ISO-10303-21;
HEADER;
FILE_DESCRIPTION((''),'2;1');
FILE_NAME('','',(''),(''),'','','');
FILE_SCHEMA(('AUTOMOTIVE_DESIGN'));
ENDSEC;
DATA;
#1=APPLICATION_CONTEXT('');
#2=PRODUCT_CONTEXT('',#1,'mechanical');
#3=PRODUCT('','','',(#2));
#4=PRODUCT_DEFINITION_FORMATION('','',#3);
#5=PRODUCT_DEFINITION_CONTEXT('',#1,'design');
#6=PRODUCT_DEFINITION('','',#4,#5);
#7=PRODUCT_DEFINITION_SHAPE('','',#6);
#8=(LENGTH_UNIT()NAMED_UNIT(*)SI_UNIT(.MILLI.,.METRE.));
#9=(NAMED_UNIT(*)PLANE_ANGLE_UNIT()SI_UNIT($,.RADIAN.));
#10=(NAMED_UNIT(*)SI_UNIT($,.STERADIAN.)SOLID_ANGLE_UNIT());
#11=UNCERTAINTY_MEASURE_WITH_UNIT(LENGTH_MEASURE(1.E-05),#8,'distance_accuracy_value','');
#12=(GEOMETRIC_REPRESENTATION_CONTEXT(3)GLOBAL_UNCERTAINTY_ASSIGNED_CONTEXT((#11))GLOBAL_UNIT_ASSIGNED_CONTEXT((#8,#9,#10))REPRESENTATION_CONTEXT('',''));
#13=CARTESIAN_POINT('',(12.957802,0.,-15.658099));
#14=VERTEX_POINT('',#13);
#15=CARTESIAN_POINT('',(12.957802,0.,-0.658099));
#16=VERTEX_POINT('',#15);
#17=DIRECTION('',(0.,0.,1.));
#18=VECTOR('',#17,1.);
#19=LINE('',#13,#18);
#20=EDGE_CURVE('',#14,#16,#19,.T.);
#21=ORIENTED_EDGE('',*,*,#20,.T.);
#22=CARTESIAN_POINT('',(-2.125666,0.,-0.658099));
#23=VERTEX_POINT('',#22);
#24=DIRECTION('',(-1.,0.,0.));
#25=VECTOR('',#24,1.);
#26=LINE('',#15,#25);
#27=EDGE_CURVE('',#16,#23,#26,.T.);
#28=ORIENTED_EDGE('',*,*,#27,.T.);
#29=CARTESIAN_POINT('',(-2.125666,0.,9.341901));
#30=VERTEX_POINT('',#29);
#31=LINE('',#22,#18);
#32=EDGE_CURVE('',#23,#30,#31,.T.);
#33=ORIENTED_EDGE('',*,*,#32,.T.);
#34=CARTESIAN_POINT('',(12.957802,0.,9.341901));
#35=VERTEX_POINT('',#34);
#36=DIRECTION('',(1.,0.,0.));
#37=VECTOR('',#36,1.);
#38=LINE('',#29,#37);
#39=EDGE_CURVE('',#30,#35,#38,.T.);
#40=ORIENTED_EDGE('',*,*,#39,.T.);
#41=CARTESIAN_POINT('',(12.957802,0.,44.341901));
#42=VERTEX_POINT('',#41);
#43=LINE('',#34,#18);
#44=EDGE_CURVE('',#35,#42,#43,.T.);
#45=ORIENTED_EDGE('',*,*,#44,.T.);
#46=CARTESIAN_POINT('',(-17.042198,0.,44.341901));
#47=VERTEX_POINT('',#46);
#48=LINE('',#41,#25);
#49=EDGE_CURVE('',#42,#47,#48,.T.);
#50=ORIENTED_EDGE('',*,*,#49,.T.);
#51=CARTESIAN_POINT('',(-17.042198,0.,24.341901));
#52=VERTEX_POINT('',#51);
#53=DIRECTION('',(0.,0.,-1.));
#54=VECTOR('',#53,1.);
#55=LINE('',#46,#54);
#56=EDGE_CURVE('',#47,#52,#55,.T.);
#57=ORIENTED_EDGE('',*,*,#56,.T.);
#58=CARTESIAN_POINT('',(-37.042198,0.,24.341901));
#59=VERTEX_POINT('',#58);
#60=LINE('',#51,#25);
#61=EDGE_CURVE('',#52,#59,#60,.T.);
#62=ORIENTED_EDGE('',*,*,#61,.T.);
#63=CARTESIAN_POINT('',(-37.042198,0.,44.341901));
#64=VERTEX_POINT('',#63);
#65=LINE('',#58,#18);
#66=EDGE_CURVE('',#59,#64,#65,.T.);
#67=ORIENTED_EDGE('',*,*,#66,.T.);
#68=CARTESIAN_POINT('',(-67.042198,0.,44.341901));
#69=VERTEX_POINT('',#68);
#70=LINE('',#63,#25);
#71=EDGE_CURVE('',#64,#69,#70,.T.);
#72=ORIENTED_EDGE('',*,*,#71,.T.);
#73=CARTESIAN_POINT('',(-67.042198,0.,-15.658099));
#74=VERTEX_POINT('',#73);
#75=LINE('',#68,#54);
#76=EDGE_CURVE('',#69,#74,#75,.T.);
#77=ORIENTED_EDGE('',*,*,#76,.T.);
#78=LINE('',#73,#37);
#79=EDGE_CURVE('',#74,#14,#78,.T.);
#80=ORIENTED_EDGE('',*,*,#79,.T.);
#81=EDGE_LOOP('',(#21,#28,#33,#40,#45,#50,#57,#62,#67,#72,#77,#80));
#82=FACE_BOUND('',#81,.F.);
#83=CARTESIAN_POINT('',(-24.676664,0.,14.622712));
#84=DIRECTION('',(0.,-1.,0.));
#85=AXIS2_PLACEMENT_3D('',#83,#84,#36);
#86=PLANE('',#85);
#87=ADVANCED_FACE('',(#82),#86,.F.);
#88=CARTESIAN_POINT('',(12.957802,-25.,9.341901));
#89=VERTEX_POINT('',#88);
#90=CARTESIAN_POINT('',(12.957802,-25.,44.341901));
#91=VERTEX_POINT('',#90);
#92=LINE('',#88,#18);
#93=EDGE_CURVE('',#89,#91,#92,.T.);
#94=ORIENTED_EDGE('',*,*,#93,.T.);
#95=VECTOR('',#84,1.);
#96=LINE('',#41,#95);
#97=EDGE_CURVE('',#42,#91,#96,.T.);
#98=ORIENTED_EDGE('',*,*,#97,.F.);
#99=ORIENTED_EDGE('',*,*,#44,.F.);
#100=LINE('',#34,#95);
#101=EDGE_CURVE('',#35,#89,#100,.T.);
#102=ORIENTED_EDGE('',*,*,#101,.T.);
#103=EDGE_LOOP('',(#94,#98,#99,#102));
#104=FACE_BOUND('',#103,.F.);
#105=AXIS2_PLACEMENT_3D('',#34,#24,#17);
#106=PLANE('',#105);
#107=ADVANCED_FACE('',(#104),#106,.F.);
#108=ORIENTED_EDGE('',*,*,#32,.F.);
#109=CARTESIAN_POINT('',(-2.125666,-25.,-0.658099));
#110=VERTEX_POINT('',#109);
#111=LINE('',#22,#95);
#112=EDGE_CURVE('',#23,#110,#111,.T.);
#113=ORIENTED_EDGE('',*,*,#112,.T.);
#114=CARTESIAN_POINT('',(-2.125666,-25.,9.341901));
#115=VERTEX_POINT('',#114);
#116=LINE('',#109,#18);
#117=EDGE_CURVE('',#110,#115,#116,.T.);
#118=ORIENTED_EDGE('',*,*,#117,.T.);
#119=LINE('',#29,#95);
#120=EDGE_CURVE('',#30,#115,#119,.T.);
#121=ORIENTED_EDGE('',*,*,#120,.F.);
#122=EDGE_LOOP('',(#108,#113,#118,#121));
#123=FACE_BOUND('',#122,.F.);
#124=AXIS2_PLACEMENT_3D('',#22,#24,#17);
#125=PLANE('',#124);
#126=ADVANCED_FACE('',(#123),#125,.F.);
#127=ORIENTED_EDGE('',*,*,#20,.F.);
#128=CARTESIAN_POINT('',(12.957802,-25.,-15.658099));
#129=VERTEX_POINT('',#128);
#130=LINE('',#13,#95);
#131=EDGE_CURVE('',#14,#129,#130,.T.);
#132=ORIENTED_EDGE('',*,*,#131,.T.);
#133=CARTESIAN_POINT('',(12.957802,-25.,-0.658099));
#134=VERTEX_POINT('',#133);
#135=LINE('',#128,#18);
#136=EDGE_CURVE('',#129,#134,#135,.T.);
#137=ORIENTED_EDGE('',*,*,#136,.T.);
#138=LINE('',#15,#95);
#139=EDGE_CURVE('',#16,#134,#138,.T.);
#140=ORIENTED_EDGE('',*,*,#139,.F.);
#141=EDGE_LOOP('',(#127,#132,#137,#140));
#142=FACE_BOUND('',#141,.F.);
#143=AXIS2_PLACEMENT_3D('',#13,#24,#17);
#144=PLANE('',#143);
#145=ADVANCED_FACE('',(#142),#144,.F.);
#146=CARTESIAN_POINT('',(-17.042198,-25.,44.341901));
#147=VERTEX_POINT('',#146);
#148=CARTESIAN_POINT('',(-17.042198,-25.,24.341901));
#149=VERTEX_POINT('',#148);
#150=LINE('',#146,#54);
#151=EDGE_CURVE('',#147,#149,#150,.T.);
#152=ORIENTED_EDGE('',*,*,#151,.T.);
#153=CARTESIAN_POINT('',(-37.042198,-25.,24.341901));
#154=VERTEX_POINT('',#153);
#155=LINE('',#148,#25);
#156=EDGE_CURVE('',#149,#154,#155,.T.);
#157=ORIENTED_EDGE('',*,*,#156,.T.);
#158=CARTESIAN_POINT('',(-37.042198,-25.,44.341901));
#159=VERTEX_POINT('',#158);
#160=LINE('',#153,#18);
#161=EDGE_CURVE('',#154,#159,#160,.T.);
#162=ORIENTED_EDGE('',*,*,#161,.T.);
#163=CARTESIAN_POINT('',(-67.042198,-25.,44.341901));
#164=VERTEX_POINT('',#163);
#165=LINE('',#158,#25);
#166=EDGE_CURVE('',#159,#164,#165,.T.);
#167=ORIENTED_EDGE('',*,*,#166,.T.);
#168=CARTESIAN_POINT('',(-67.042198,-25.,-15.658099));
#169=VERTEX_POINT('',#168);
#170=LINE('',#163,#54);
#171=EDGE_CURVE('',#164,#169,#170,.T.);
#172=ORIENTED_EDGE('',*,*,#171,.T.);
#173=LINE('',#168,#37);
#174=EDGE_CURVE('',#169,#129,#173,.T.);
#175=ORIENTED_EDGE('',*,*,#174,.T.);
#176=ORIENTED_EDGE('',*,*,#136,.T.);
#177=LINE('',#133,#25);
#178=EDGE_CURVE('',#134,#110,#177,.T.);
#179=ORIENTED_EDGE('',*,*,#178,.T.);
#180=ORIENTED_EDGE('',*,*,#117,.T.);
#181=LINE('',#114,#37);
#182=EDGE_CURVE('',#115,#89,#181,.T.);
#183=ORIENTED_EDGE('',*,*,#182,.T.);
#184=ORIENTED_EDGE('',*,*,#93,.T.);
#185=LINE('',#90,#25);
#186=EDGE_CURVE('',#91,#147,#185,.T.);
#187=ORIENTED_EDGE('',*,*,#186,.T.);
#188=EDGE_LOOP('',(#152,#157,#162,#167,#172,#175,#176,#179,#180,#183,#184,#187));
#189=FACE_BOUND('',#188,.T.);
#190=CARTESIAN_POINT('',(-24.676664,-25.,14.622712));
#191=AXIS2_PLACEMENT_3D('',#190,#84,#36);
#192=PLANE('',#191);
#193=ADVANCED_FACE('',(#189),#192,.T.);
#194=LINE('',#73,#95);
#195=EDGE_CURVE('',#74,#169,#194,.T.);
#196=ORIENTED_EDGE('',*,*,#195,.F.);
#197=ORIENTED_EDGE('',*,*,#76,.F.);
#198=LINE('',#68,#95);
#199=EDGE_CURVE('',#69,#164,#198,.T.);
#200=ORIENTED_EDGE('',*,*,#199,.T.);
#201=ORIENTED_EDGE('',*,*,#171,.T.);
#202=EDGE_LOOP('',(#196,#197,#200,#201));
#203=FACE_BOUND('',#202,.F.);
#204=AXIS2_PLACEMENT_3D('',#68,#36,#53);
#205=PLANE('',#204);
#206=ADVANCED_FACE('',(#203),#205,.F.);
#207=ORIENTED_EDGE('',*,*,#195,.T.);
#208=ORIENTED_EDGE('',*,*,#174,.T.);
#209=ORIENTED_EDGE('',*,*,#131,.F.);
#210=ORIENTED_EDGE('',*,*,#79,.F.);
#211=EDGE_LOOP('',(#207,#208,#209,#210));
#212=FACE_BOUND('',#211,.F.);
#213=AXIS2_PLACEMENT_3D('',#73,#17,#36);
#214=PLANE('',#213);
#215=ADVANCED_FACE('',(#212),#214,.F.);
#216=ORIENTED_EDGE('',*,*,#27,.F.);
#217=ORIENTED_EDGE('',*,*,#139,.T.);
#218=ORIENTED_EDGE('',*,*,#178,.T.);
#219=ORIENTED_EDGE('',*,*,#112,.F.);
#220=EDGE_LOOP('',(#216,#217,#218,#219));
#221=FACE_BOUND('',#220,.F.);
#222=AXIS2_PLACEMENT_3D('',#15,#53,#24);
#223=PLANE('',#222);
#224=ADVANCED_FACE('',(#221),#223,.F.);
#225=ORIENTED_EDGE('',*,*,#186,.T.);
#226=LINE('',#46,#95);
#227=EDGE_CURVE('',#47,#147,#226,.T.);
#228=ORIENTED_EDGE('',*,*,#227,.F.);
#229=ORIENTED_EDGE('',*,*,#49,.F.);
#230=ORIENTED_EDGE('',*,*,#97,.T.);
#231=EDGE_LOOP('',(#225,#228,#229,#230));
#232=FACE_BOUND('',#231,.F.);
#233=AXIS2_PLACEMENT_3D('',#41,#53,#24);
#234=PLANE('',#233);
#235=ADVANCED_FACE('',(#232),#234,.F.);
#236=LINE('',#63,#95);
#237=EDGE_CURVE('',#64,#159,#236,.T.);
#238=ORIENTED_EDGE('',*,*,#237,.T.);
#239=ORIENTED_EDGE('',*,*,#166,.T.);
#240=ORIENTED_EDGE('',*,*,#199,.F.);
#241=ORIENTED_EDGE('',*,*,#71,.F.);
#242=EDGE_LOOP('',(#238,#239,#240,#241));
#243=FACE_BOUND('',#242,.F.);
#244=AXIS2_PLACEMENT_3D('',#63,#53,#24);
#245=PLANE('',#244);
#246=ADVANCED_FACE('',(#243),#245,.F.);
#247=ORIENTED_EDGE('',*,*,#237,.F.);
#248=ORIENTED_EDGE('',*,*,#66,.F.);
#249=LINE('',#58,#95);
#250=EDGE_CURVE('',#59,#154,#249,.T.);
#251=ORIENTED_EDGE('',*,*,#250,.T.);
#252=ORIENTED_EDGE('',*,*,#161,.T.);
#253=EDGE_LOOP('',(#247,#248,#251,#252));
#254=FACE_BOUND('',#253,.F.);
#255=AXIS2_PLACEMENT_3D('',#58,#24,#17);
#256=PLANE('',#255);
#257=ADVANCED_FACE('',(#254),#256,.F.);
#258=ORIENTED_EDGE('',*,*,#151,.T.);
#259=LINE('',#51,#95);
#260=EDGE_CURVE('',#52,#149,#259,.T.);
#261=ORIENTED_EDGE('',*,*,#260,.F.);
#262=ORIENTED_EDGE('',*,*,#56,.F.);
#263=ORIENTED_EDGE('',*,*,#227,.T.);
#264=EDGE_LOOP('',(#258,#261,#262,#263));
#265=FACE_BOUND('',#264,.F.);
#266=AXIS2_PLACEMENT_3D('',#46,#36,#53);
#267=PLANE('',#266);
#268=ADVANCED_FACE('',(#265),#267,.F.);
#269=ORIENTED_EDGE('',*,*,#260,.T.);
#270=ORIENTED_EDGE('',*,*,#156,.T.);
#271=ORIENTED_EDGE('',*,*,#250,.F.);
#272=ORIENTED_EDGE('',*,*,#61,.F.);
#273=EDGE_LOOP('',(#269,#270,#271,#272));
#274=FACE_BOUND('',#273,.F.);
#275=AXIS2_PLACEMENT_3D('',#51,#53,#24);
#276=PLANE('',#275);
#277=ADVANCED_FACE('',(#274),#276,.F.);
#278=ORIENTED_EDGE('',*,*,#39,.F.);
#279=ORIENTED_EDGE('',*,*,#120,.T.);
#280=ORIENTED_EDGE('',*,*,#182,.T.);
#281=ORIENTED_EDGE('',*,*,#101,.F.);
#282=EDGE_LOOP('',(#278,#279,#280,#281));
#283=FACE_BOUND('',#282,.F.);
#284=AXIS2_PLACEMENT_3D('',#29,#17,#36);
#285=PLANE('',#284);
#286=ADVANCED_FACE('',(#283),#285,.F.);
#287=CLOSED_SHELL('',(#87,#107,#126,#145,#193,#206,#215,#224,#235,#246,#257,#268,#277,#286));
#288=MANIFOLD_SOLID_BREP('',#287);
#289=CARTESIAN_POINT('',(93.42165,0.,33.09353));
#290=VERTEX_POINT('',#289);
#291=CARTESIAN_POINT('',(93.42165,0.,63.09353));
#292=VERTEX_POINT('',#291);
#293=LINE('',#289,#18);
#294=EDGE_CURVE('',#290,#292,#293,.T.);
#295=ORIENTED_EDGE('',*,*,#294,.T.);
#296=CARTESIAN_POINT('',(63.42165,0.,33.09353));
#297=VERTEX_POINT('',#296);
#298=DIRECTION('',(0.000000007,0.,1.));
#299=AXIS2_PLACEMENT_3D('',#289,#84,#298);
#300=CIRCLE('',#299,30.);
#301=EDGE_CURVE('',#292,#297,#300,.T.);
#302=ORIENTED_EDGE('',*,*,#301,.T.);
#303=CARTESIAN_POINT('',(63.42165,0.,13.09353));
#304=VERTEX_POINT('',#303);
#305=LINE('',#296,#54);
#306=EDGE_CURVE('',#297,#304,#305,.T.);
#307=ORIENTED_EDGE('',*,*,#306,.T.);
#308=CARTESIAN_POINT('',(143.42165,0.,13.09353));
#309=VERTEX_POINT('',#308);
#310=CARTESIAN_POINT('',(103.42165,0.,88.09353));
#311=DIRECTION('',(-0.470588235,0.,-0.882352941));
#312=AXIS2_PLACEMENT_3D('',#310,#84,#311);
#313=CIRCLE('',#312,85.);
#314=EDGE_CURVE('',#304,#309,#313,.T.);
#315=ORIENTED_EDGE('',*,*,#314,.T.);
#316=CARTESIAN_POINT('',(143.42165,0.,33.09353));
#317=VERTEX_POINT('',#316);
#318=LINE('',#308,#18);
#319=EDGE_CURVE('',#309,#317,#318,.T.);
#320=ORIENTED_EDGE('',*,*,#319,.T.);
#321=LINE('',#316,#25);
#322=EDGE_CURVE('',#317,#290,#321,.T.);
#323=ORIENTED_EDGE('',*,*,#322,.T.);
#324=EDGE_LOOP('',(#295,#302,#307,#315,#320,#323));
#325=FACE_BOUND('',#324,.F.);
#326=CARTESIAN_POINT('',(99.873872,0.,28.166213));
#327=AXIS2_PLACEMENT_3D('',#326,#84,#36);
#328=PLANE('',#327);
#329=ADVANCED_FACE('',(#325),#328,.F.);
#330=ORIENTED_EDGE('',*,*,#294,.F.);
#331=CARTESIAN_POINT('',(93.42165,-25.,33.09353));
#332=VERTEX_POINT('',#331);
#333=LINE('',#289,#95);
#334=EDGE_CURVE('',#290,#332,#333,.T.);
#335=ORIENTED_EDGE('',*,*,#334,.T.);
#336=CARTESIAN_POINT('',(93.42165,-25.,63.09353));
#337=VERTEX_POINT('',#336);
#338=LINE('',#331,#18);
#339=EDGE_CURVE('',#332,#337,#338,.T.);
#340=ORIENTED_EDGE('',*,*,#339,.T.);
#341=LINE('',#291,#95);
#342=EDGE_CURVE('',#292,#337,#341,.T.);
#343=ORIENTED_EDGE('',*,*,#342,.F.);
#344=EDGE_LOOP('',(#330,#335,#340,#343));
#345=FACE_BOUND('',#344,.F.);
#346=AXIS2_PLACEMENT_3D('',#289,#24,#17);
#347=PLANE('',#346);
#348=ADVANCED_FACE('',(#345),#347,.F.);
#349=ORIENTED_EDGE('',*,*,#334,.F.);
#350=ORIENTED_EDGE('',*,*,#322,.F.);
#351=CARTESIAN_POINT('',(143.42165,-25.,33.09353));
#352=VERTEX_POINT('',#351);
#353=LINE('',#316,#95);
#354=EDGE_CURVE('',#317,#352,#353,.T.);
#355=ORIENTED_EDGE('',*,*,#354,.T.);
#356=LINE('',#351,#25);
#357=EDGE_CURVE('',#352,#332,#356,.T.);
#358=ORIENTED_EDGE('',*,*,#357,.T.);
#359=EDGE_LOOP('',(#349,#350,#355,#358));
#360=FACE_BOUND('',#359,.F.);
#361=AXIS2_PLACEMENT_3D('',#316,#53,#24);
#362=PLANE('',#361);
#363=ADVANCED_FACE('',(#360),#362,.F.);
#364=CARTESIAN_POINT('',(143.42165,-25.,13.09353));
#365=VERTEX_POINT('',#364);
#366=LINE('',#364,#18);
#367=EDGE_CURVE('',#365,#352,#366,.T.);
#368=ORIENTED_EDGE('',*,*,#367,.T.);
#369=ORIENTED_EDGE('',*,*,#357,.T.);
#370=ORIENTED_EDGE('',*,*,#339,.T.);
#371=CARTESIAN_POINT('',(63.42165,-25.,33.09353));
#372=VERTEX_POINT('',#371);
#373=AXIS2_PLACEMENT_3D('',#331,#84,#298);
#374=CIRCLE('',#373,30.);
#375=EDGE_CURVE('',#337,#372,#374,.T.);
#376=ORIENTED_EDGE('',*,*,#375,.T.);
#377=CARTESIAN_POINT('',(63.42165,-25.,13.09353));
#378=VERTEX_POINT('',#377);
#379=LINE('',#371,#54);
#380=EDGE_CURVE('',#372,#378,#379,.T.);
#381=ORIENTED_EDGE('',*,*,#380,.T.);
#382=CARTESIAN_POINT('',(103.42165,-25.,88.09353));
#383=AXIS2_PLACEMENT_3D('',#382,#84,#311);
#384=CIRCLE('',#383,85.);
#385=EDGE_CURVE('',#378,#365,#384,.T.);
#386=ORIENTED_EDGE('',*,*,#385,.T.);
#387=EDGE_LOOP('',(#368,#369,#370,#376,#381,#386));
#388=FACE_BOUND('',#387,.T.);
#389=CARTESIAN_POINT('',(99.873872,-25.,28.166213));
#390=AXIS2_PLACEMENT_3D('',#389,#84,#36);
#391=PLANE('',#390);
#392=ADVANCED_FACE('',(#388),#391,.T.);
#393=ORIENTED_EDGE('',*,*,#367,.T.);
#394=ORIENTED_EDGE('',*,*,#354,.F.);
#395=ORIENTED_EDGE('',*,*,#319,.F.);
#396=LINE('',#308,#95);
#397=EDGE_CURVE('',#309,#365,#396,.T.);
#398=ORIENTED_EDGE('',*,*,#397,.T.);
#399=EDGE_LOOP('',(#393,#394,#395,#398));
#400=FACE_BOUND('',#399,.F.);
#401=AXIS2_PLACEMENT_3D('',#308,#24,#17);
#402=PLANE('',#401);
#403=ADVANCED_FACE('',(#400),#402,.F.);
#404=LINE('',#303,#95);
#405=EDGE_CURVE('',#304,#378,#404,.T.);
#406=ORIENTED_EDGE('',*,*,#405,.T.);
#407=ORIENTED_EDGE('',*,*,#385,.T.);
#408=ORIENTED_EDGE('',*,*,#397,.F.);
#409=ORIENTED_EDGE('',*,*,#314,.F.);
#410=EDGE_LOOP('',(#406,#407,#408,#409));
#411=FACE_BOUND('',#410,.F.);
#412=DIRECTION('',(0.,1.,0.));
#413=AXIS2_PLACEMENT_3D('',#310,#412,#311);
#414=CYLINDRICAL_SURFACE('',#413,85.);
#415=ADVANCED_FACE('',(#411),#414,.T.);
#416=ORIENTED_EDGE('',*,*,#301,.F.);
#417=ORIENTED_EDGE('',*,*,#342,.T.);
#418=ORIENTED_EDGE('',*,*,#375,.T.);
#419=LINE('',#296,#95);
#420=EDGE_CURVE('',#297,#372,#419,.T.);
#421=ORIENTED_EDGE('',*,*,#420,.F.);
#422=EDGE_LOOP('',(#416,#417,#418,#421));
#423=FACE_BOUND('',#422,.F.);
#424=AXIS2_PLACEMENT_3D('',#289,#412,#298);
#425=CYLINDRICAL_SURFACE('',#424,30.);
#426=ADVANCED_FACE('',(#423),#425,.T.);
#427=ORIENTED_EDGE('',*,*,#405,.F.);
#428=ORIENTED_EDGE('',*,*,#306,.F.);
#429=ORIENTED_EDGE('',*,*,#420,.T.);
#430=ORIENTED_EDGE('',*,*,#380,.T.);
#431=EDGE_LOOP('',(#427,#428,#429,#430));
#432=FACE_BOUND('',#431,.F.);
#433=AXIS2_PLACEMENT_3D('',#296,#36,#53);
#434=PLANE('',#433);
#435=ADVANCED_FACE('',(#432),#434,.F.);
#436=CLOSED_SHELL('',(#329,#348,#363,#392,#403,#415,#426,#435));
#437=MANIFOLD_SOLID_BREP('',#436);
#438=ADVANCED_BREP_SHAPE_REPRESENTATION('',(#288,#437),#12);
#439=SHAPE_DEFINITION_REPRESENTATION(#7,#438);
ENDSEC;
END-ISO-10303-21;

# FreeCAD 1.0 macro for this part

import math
import FreeCAD as App
import Part
import Sketcher

V = App.Vector
Q = App.Units.Quantity

doc = App.newDocument("Part")
body = doc.addObject("PartDesign::Body", "Body")
body.AllowCompound = True

# Sketch on XZ plane
sketch1 = body.newObject("Sketcher::SketchObject", "Sketch")
sketch1.AttachmentSupport = (doc.getObject("XZ_Plane"), [""])
sketch1.MapMode = "FlatFace"
sketch1.addGeometry([
    Part.LineSegment(V(-37, 44, 0), V(-67, 44, 0)),  # 0
    Part.LineSegment(V(-67, 44, 0), V(-67, -16, 0)),  # 1
    Part.LineSegment(V(-67, -16, 0), V(13, -16, 0)),  # 2
    Part.LineSegment(V(13, -16, 0), V(13, -1, 0)),  # 3
    Part.LineSegment(V(13, -1, 0), V(-2, -1, 0)),  # 4
    Part.LineSegment(V(-2, -1, 0), V(-2, 9, 0)),  # 5
    Part.LineSegment(V(-2, 9, 0), V(13, 9, 0)),  # 6
    Part.LineSegment(V(13, 9, 0), V(13, 44, 0)),  # 7
    Part.LineSegment(V(13, 44, 0), V(-17, 44, 0)),  # 8
    Part.LineSegment(V(-17, 44, 0), V(-17, 24, 0)),  # 9
    Part.LineSegment(V(-17, 24, 0), V(-37, 24, 0)),  # 10
    Part.LineSegment(V(-37, 24, 0), V(-37, 44, 0)),  # 11
    Part.LineSegment(V(93, 33, 0), V(93, 63, 0)),  # 12
    Part.ArcOfCircle(Part.Circle(V(93, 33, 0), V(0, 0, 1), 30), math.radians(90), math.radians(180)),  # 13
    Part.LineSegment(V(63, 33, 0), V(63, 13, 0)),  # 14
    Part.ArcOfCircle(Part.Circle(V(103, 88, 0), V(0, 0, 1), 85), math.radians(-118), math.radians(-62)),  # 15
    Part.LineSegment(V(143, 13, 0), V(143, 33, 0)),  # 16
    Part.LineSegment(V(143, 33, 0), V(93, 33, 0)),  # 17
], False)
sketch1.addConstraint([
    Sketcher.Constraint("Coincident", 0, 2, 1, 1),
    Sketcher.Constraint("Coincident", 1, 2, 2, 1),
    Sketcher.Constraint("Coincident", 2, 2, 3, 1),
    Sketcher.Constraint("Coincident", 3, 2, 4, 1),
    Sketcher.Constraint("Coincident", 4, 2, 5, 1),
    Sketcher.Constraint("Coincident", 5, 2, 6, 1),
    Sketcher.Constraint("Coincident", 6, 2, 7, 1),
    Sketcher.Constraint("Coincident", 7, 2, 8, 1),
    Sketcher.Constraint("Coincident", 8, 2, 9, 1),
    Sketcher.Constraint("Coincident", 9, 2, 10, 1),
    Sketcher.Constraint("Coincident", 10, 2, 11, 1),
    Sketcher.Constraint("Coincident", 11, 2, 0, 1),
    Sketcher.Constraint("Coincident", 12, 2, 13, 1),
    Sketcher.Constraint("Tangent", 13, 2, 14, 1),
    Sketcher.Constraint("Coincident", 14, 2, 15, 1),
    Sketcher.Constraint("Coincident", 15, 2, 16, 1),
    Sketcher.Constraint("Coincident", 16, 2, 17, 1),
    Sketcher.Constraint("Coincident", 17, 2, 12, 1),
    Sketcher.Constraint("Horizontal", 0),
    Sketcher.Constraint("Vertical", 1),
    Sketcher.Constraint("Horizontal", 2),
    Sketcher.Constraint("Vertical", 3),
    Sketcher.Constraint("Horizontal", 4),
    Sketcher.Constraint("Vertical", 5),
    Sketcher.Constraint("Horizontal", 6),
    Sketcher.Constraint("Vertical", 7),
    Sketcher.Constraint("Horizontal", 8),
    Sketcher.Constraint("Vertical", 9),
    Sketcher.Constraint("Horizontal", 10),
    Sketcher.Constraint("Vertical", 11),
    Sketcher.Constraint("Vertical", 12),
    Sketcher.Constraint("Vertical", 14),
    Sketcher.Constraint("Vertical", 16),
    Sketcher.Constraint("Horizontal", 17),
    Sketcher.Constraint("Coincident", 17, 2, 13, 3),
    Sketcher.Constraint("Horizontal", 0, 2, 7, 2),
    Sketcher.Constraint("Horizontal", 14, 2, 15, 2),
    Sketcher.Constraint("Vertical", 3, 2, 6, 2),
    Sketcher.Constraint("Equal", 0, 8),
    Sketcher.Constraint("Equal", 10, 9),
    Sketcher.Constraint("Equal", 8, 12),
    Sketcher.Constraint("Equal", 11, 14),
    Sketcher.Constraint("Radius", 13, Q("30 mm")),
    Sketcher.Constraint("Radius", 15, Q("85 mm")),
    Sketcher.Constraint("DistanceX", 2, 1, 2, 2, Q("80 mm")),
    Sketcher.Constraint("DistanceX", 17, 2, 17, 1, Q("50 mm")),
    Sketcher.Constraint("DistanceY", 1, 2, 1, 1, Q("60 mm")),
    Sketcher.Constraint("DistanceY", 3, 1, 3, 2, Q("15 mm")),
    Sketcher.Constraint("DistanceY", 5, 1, 5, 2, Q("10 mm")),
    Sketcher.Constraint("DistanceX", 0, 2, -1, 1, Q("67.042198 mm")),
    Sketcher.Constraint("DistanceY", -1, 1, 0, 2, Q("44.341901 mm")),
    Sketcher.Constraint("DistanceX", 4, 2, 4, 1, Q("15.083468 mm")),
    Sketcher.Constraint("DistanceX", -1, 1, 13, 3, Q("93.42165 mm")),
    Sketcher.Constraint("DistanceY", -1, 1, 13, 3, Q("33.09353 mm")),
])
pad1 = body.newObject("PartDesign::Pad", "Pad")
pad1.Profile = sketch1
pad1.Length = 25

doc.recompute()
